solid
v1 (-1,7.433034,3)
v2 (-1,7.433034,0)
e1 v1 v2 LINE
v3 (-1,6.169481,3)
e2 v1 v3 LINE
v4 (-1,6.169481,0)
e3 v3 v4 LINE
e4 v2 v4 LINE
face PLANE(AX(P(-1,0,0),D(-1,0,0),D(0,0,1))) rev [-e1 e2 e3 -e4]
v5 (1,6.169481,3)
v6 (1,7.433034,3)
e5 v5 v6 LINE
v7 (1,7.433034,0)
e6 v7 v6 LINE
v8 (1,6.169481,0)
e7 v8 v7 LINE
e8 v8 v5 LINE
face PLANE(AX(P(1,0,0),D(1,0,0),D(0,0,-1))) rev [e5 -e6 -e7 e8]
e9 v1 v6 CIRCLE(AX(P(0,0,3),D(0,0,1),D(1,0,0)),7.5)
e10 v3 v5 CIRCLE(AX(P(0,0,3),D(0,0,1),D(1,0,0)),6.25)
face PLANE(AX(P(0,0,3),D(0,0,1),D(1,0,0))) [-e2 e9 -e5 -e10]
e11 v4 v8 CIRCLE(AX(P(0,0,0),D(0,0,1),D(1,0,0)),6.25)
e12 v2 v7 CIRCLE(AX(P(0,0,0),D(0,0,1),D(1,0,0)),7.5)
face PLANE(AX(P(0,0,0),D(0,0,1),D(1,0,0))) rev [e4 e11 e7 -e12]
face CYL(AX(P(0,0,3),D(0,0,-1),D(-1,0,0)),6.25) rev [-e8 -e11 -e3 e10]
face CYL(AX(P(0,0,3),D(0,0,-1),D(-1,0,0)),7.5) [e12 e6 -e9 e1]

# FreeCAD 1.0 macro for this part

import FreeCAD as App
import Part
import Sketcher

V = App.Vector

doc = App.newDocument("Part")
body = doc.addObject("PartDesign::Body", "Body")

# Sketch on XY plane
sketch1 = body.newObject("Sketcher::SketchObject", "Sketch")
sketch1.AttachmentSupport = (doc.getObject("XY_Plane"), [""])
sketch1.MapMode = "FlatFace"
sketch1.addGeometry(Part.Circle(V(0, 0, 0), V(0, 0, 1), 8), False)
sketch1.addGeometry(Part.Circle(V(0, 0, 0), V(0, 0, 1), 6), False)
sketch1.addConstraint(Sketcher.Constraint("Coincident", 0, 3, -1, 1))
sketch1.addConstraint(Sketcher.Constraint("Coincident", 1, 3, -1, 1))
sketch1.addConstraint(Sketcher.Constraint("Diameter", 0, 15.0))
sketch1.addConstraint(Sketcher.Constraint("Diameter", 1, 12.5))
pad1 = body.newObject("PartDesign::Pad", "Pad")
pad1.Profile = sketch1
pad1.Length = 3

# Sketch on XY plane
sketch2 = body.newObject("Sketcher::SketchObject", "Sketch001")
sketch2.AttachmentSupport = (doc.getObject("XY_Plane"), [""])
sketch2.MapMode = "FlatFace"
sketch2.AttachmentOffset = App.Placement(V(0, 0, 3), App.Rotation())
sketch2.addGeometry(Part.LineSegment(V(-1, 7.5, 0), V(-1, 0, 0)), False)
sketch2.addGeometry(Part.LineSegment(V(-1, 0, 0), V(1, 0, 0)), False)
sketch2.addGeometry(Part.LineSegment(V(1, 0, 0), V(1, 7.5, 0)), False)
sketch2.addGeometry(Part.LineSegment(V(1, 7.5, 0), V(-1, 7.5, 0)), False)
sketch2.addConstraint(Sketcher.Constraint("Coincident", 0, 2, 1, 1))
sketch2.addConstraint(Sketcher.Constraint("Coincident", 1, 2, 2, 1))
sketch2.addConstraint(Sketcher.Constraint("Coincident", 2, 2, 3, 1))
sketch2.addConstraint(Sketcher.Constraint("Coincident", 3, 2, 0, 1))
sketch2.addConstraint(Sketcher.Constraint("Vertical", 0))
sketch2.addConstraint(Sketcher.Constraint("Horizontal", 1))
sketch2.addConstraint(Sketcher.Constraint("Vertical", 2))
sketch2.addConstraint(Sketcher.Constraint("Horizontal", 3))
sketch2.addConstraint(Sketcher.Constraint("Symmetric", 0, 2, 1, 2, -1, 1))
sketch2.addConstraint(Sketcher.Constraint("DistanceX", 1, 1, 1, 2, 2.0))
sketch2.addConstraint(Sketcher.Constraint("DistanceY", 0, 2, 0, 1, 7.5))
pocket1 = body.newObject("PartDesign::Pocket", "Pocket")
pocket1.Profile = sketch2
pocket1.Type = "ThroughAll"

doc.recompute()
